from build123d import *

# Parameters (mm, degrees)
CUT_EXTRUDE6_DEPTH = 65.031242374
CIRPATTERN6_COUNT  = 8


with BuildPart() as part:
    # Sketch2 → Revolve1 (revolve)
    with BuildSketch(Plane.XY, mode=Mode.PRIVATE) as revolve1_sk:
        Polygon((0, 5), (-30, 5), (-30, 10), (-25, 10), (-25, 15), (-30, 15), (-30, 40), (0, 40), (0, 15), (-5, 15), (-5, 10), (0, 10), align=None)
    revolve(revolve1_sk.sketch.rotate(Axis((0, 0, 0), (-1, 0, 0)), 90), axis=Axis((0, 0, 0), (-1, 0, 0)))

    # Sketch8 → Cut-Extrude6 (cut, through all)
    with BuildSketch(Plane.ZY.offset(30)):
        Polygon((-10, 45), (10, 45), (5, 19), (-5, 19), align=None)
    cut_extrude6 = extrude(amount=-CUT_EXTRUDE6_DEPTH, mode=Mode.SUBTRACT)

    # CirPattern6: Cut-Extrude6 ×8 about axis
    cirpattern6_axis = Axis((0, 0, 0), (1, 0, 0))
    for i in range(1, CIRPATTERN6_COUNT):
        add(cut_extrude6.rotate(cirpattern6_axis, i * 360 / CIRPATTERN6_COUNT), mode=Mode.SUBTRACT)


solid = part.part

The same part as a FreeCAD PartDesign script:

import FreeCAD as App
import Part
import Sketcher
from FreeCAD import Vector
Q = App.Units.Quantity

doc = App.newDocument("Part")
body = doc.addObject("PartDesign::Body", "Body")

# Sketch on XY plane
sketch1 = doc.addObject("Sketcher::SketchObject", "Sketch")
body.addObject(sketch1)
sketch1.AttachmentSupport = (doc.XY_Plane, [""])
sketch1.MapMode = "FlatFace"
sketch1.addGeometry(Part.LineSegment(Vector(-30, 5, 0), Vector(0, 5, 0)), False)
sketch1.addGeometry(Part.LineSegment(Vector(0, 5, 0), Vector(0, 10, 0)), False)
sketch1.addGeometry(Part.LineSegment(Vector(0, 10, 0), Vector(-5, 10, 0)), False)
sketch1.addGeometry(Part.LineSegment(Vector(-5, 10, 0), Vector(-5, 15, 0)), False)
sketch1.addGeometry(Part.LineSegment(Vector(-5, 15, 0), Vector(0, 15, 0)), False)
sketch1.addGeometry(Part.LineSegment(Vector(0, 15, 0), Vector(0, 40, 0)), False)
sketch1.addGeometry(Part.LineSegment(Vector(0, 40, 0), Vector(-30, 40, 0)), False)
sketch1.addGeometry(Part.LineSegment(Vector(-30, 40, 0), Vector(-30, 15, 0)), False)
sketch1.addGeometry(Part.LineSegment(Vector(-30, 15, 0), Vector(-25, 15, 0)), False)
sketch1.addGeometry(Part.LineSegment(Vector(-25, 15, 0), Vector(-25, 10, 0)), False)
sketch1.addGeometry(Part.LineSegment(Vector(-25, 10, 0), Vector(-30, 10, 0)), False)
sketch1.addGeometry(Part.LineSegment(Vector(-30, 10, 0), Vector(-30, 5, 0)), False)
sketch1.addConstraint(Sketcher.Constraint("Coincident", 0, 2, 1, 1))
sketch1.addConstraint(Sketcher.Constraint("Coincident", 1, 2, 2, 1))
sketch1.addConstraint(Sketcher.Constraint("Coincident", 2, 2, 3, 1))
sketch1.addConstraint(Sketcher.Constraint("Coincident", 3, 2, 4, 1))
sketch1.addConstraint(Sketcher.Constraint("Coincident", 4, 2, 5, 1))
sketch1.addConstraint(Sketcher.Constraint("Coincident", 5, 2, 6, 1))
sketch1.addConstraint(Sketcher.Constraint("Coincident", 6, 2, 7, 1))
sketch1.addConstraint(Sketcher.Constraint("Coincident", 7, 2, 8, 1))
sketch1.addConstraint(Sketcher.Constraint("Coincident", 8, 2, 9, 1))
sketch1.addConstraint(Sketcher.Constraint("Coincident", 9, 2, 10, 1))
sketch1.addConstraint(Sketcher.Constraint("Coincident", 10, 2, 11, 1))
sketch1.addConstraint(Sketcher.Constraint("Coincident", 11, 2, 0, 1))
sketch1.addConstraint(Sketcher.Constraint("Horizontal", 0))
sketch1.addConstraint(Sketcher.Constraint("Vertical", 1))
sketch1.addConstraint(Sketcher.Constraint("Horizontal", 2))
sketch1.addConstraint(Sketcher.Constraint("Vertical", 3))
sketch1.addConstraint(Sketcher.Constraint("Horizontal", 4))
sketch1.addConstraint(Sketcher.Constraint("Vertical", 5))
sketch1.addConstraint(Sketcher.Constraint("Horizontal", 6))
sketch1.addConstraint(Sketcher.Constraint("Vertical", 7))
sketch1.addConstraint(Sketcher.Constraint("Horizontal", 8))
sketch1.addConstraint(Sketcher.Constraint("Vertical", 9))
sketch1.addConstraint(Sketcher.Constraint("Horizontal", 10))
sketch1.addConstraint(Sketcher.Constraint("Vertical", 11))
sketch1.addConstraint(Sketcher.Constraint("PointOnObject", 0, 2, -2))
sketch1.addConstraint(Sketcher.Constraint("PointOnObject", 4, 2, -2))
sketch1.addConstraint(Sketcher.Constraint("Horizontal", 4, 2, 7, 2))
sketch1.addConstraint(Sketcher.Constraint("Horizontal", 2, 2, 9, 2))
sketch1.addConstraint(Sketcher.Constraint("Vertical", 7, 2, 10, 2))
sketch1.addConstraint(Sketcher.Constraint("Equal", 4, 8))
sketch1.addConstraint(Sketcher.Constraint("Equal", 10, 1))
sketch1.addConstraint(Sketcher.Constraint("Equal", 1, 3))
sketch1.addConstraint(Sketcher.Constraint("DistanceX", 0, 1, 0, 2, Q("30 mm")))
sketch1.addConstraint(Sketcher.Constraint("DistanceX", 2, 2, 2, 1, Q("5 mm")))
sketch1.addConstraint(Sketcher.Constraint("DistanceY", 5, 1, 5, 2, Q("25 mm")))
sketch1.addConstraint(Sketcher.Constraint("DistanceY", -1, 1, 0, 2, Q("5 mm")))
revolution = doc.addObject("PartDesign::Revolution", "Revolution")
body.addObject(revolution)
revolution.Profile = sketch1
revolution.ReferenceAxis = (sketch1, ["H_Axis"])
revolution.Angle = 360

# Sketch on YZ plane
sketch2 = doc.addObject("Sketcher::SketchObject", "Sketch001")
body.addObject(sketch2)
sketch2.AttachmentSupport = (doc.YZ_Plane, [""])
sketch2.MapMode = "FlatFace"
sketch2.AttachmentOffset = App.Placement(Vector(0, 0, -30), App.Rotation())
sketch2.addGeometry(Part.LineSegment(Vector(45, 10, 0), Vector(45, -10, 0)), False)
sketch2.addGeometry(Part.LineSegment(Vector(45, -10, 0), Vector(19, -5, 0)), False)
sketch2.addGeometry(Part.LineSegment(Vector(19, -5, 0), Vector(19, 5, 0)), False)
sketch2.addGeometry(Part.LineSegment(Vector(19, 5, 0), Vector(45, 10, 0)), False)
sketch2.addConstraint(Sketcher.Constraint("Coincident", 0, 2, 1, 1))
sketch2.addConstraint(Sketcher.Constraint("Coincident", 1, 2, 2, 1))
sketch2.addConstraint(Sketcher.Constraint("Coincident", 2, 2, 3, 1))
sketch2.addConstraint(Sketcher.Constraint("Coincident", 3, 2, 0, 1))
sketch2.addConstraint(Sketcher.Constraint("Vertical", 0))
sketch2.addConstraint(Sketcher.Constraint("Vertical", 2))
sketch2.addConstraint(Sketcher.Constraint("Equal", 1, 3))
sketch2.addConstraint(Sketcher.Constraint("DistanceY", 0, 2, 0, 1, Q("20 mm")))
sketch2.addConstraint(Sketcher.Constraint("DistanceY", 2, 1, 2, 2, Q("10 mm")))
sketch2.addConstraint(Sketcher.Constraint("DistanceX", -1, 1, 0, 2, Q("45 mm")))
sketch2.addConstraint(Sketcher.Constraint("DistanceY", 0, 2, -1, 1, Q("10 mm")))
sketch2.addConstraint(Sketcher.Constraint("DistanceX", -1, 1, 1, 2, Q("19 mm")))
pocket1 = doc.addObject("PartDesign::Pocket", "Pocket")
body.addObject(pocket1)
pocket1.Profile = sketch2
pocket1.Type = "ThroughAll"
pocket1.Reversed = True
doc.recompute()

polarpattern = doc.addObject("PartDesign::PolarPattern", "PolarPattern")
body.addObject(polarpattern)
polarpattern.Originals = [pocket1]
polarpattern.Axis = (doc.X_Axis, [""])
polarpattern.Angle = 360
polarpattern.Occurrences = 8
body.Tip = polarpattern

doc.recompute()
